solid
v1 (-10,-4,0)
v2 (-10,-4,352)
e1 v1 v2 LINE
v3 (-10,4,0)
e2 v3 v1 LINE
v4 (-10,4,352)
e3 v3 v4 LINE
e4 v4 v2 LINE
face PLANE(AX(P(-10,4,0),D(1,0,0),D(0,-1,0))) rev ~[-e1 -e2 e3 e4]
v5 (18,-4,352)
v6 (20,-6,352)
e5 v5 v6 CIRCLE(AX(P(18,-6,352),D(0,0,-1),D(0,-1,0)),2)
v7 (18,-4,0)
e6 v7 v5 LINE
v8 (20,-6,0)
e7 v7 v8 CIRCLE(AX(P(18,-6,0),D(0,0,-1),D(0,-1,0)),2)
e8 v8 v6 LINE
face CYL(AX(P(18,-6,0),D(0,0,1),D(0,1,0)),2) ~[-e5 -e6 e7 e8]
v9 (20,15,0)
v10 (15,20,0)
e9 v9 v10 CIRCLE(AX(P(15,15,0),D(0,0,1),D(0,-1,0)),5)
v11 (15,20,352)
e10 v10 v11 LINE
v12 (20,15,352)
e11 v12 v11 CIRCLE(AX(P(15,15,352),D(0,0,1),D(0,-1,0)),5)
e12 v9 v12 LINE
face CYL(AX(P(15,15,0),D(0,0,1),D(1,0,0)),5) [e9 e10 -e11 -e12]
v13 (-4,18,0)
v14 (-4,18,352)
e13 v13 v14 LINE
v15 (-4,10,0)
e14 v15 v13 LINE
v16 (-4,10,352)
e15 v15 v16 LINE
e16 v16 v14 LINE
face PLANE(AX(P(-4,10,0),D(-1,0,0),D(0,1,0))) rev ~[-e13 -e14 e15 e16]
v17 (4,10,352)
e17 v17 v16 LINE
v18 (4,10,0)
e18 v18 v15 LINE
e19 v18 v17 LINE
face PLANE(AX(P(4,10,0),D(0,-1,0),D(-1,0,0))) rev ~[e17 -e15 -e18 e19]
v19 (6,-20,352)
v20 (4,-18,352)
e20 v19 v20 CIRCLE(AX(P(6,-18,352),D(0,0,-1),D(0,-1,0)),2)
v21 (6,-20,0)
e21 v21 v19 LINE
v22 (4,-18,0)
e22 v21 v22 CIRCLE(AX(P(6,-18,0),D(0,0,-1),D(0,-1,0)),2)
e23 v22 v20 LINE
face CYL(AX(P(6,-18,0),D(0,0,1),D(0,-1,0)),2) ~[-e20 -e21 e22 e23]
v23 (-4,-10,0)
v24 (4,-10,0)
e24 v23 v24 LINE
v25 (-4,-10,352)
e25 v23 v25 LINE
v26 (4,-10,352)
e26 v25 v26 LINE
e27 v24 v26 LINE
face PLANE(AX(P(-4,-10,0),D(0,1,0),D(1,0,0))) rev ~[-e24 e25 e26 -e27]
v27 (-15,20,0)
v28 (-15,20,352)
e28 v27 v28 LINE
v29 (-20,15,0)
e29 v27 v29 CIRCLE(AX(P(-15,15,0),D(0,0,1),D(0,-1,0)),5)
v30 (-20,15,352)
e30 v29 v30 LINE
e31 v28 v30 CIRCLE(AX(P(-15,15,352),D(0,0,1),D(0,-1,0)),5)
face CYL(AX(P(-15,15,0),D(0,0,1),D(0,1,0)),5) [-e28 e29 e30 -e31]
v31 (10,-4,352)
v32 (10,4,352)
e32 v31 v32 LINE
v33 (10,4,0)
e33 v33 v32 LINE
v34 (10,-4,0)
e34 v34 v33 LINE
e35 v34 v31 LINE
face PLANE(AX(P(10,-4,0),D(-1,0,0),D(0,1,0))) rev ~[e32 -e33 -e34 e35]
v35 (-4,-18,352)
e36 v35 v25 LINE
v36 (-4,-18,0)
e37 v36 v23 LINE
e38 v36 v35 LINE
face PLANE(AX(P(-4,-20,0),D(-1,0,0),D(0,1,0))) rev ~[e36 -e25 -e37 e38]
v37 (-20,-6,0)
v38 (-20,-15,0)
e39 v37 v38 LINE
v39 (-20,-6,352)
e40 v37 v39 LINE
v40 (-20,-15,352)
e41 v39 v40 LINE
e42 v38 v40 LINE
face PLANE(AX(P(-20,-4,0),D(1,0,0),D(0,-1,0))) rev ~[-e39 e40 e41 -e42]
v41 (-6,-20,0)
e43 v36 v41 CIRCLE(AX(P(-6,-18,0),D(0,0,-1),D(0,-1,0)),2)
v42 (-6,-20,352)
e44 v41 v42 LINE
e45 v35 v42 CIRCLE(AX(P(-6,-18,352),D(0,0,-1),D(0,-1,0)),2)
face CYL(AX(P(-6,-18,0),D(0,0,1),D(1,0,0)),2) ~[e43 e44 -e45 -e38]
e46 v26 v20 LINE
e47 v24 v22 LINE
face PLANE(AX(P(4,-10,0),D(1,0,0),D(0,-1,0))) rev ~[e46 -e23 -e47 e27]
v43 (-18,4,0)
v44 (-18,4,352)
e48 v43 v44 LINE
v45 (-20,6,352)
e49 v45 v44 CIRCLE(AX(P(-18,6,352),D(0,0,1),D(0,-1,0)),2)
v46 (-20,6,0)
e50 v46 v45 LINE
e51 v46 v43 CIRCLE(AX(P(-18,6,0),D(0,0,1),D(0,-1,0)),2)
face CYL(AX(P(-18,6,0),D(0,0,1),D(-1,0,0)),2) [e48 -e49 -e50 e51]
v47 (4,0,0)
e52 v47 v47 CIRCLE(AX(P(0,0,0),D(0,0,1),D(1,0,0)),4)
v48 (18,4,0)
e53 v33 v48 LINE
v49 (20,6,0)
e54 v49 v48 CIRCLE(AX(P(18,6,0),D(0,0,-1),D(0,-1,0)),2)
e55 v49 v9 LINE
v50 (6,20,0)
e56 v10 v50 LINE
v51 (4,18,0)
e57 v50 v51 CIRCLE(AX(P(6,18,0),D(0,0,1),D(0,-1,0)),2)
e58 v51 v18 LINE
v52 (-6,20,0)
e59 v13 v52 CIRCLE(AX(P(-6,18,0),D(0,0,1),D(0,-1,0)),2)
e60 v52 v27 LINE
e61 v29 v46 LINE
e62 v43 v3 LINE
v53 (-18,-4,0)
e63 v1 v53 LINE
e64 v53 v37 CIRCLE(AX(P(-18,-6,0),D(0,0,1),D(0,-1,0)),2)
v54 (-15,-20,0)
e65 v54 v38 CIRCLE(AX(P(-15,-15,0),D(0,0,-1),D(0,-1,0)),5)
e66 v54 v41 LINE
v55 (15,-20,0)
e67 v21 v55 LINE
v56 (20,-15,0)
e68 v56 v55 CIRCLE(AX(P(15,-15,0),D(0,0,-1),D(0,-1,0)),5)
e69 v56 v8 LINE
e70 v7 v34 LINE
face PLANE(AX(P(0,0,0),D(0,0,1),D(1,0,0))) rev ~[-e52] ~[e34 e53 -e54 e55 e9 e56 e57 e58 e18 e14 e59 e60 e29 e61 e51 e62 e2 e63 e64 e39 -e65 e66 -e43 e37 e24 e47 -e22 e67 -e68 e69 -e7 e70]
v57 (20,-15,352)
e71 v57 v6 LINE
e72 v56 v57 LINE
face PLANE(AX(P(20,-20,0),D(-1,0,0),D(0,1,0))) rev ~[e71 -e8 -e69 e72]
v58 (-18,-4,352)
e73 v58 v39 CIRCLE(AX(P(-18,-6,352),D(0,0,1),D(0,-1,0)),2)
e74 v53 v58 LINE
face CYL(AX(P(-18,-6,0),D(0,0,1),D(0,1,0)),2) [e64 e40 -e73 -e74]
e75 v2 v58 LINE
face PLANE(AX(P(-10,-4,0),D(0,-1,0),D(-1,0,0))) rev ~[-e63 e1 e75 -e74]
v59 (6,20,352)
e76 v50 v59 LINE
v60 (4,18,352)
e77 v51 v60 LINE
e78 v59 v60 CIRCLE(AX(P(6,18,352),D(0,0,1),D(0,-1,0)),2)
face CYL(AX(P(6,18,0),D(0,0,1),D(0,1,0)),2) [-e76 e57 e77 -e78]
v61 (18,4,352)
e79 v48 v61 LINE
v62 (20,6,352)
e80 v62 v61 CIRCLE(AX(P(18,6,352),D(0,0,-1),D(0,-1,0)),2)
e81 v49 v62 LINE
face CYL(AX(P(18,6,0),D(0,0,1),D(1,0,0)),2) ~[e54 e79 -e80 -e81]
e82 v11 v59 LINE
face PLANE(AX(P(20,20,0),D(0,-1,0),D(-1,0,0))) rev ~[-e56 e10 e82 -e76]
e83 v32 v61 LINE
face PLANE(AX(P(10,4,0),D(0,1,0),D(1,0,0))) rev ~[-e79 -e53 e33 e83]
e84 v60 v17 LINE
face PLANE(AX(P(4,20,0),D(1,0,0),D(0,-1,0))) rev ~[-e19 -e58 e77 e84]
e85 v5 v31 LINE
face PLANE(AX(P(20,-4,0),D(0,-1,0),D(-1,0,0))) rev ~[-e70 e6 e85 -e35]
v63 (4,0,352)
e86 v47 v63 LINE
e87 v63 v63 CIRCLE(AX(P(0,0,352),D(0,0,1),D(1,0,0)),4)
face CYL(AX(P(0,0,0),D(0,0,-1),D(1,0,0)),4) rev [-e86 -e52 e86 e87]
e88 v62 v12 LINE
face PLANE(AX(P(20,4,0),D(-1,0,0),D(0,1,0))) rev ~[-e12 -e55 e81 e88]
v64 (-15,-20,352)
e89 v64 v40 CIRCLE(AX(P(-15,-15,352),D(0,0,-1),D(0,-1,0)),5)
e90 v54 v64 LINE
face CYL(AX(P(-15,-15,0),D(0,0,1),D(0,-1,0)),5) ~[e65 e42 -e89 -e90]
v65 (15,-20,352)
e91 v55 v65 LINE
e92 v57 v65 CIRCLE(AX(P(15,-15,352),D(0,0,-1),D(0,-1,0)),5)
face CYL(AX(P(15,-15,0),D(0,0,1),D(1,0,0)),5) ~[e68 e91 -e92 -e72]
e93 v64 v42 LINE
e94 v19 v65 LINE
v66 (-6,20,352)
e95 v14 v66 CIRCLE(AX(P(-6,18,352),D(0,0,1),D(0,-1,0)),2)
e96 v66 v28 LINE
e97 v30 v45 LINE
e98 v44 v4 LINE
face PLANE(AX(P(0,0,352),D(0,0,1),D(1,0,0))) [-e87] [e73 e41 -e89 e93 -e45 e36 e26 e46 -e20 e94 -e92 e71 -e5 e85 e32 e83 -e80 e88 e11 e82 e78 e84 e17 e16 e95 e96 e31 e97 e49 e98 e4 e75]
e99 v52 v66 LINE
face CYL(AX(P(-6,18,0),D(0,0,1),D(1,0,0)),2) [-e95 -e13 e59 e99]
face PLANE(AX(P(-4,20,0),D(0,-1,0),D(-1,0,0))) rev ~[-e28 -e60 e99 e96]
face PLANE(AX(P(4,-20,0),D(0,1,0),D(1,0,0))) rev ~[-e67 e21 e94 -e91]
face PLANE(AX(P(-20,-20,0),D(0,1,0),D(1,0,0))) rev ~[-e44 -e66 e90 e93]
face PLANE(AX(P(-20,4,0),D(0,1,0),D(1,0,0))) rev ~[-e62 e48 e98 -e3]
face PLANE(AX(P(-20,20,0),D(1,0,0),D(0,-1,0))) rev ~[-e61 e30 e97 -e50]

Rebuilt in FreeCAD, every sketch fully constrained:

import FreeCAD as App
import Part
import Sketcher
from FreeCAD import Vector
Q = App.Units.Quantity


def edges_at(feature, points):
    """Names of the edges that pass closest to the given points."""
    edges = feature.Shape.Edges
    near = lambda p: min(range(len(edges)), key=lambda i: edges[i].distToShape(Part.Vertex(*p))[0])
    return sorted({f"Edge{near(p) + 1}" for p in points})


def add_polygon(sketch, points):
    """Adds a closed chain of lines whose ends are joined by coincident constraints."""
    first, n = sketch.GeometryCount, len(points)
    for a, b in zip(points, points[1:] + points[:1]):
        sketch.addGeometry(Part.LineSegment(App.Vector(*a, 0), App.Vector(*b, 0)), False)
    for i in range(n):
        sketch.addConstraint(Sketcher.Constraint("Coincident", first + i, 2, first + (i + 1) % n, 1))

doc = App.newDocument("Part")
body = doc.addObject("PartDesign::Body", "Body")

sketch1 = body.newObject("Sketcher::SketchObject", "Sketch")
sketch1.AttachmentSupport = (doc.getObject("XY_Plane"), [""])
sketch1.MapMode = "FlatFace"
add_polygon(sketch1, [(20, 4), (20, 20), (4, 20), (4, 10), (-4, 10), (-4, 20), (-20, 20), (-20, 4), (-10, 4), (-10, -4), (-20, -4), (-20, -20), (-4, -20), (-4, -10), (4, -10), (4, -20), (20, -20), (20, -4), (10, -4), (10, 4)])
sketch1.addGeometry(Part.Circle(Vector(0, 0, 0), Vector(0, 0, 1), 4), False)
sketch1.addConstraint(Sketcher.Constraint("Vertical", 0))
sketch1.addConstraint(Sketcher.Constraint("Horizontal", 1))
sketch1.addConstraint(Sketcher.Constraint("Vertical", 2))
sketch1.addConstraint(Sketcher.Constraint("Horizontal", 3))
sketch1.addConstraint(Sketcher.Constraint("Vertical", 4))
sketch1.addConstraint(Sketcher.Constraint("Horizontal", 5))
sketch1.addConstraint(Sketcher.Constraint("Vertical", 6))
sketch1.addConstraint(Sketcher.Constraint("Horizontal", 7))
sketch1.addConstraint(Sketcher.Constraint("Vertical", 8))
sketch1.addConstraint(Sketcher.Constraint("Horizontal", 9))
sketch1.addConstraint(Sketcher.Constraint("Vertical", 10))
sketch1.addConstraint(Sketcher.Constraint("Horizontal", 11))
sketch1.addConstraint(Sketcher.Constraint("Vertical", 12))
sketch1.addConstraint(Sketcher.Constraint("Horizontal", 13))
sketch1.addConstraint(Sketcher.Constraint("Vertical", 14))
sketch1.addConstraint(Sketcher.Constraint("Horizontal", 15))
sketch1.addConstraint(Sketcher.Constraint("Vertical", 16))
sketch1.addConstraint(Sketcher.Constraint("Horizontal", 17))
sketch1.addConstraint(Sketcher.Constraint("Vertical", 18))
sketch1.addConstraint(Sketcher.Constraint("Horizontal", 19))
sketch1.addConstraint(Sketcher.Constraint("Coincident", 20, 3, -1, 1))
sketch1.addConstraint(Sketcher.Constraint("Symmetric", 0, 2, 10, 2, -1, 1))
sketch1.addConstraint(Sketcher.Constraint("Symmetric", 2, 2, 12, 2, -1, 1))
sketch1.addConstraint(Sketcher.Constraint("Symmetric", 4, 2, 14, 2, -1, 1))
sketch1.addConstraint(Sketcher.Constraint("Symmetric", 6, 2, 16, 2, -1, 1))
sketch1.addConstraint(Sketcher.Constraint("Symmetric", 8, 2, 18, 2, -1, 1))
sketch1.addConstraint(Sketcher.Constraint("Symmetric", 1, 2, 4, 2, -2))
sketch1.addConstraint(Sketcher.Constraint("Symmetric", 9, 2, 16, 2, -2))
sketch1.addConstraint(Sketcher.Constraint("Equal", 15, 0))
sketch1.addConstraint(Sketcher.Constraint("Equal", 19, 2))
sketch1.addConstraint(Sketcher.Constraint("Equal", 13, 8))
sketch1.addConstraint(Sketcher.Constraint("Diameter", 20, Q("8 mm")))
sketch1.addConstraint(Sketcher.Constraint("DistanceX", 1, 2, 1, 1, Q("16 mm")))
sketch1.addConstraint(Sketcher.Constraint("DistanceX", 3, 2, 3, 1, Q("8 mm")))
sketch1.addConstraint(Sketcher.Constraint("DistanceX", 7, 1, 7, 2, Q("10 mm")))
pad1 = body.newObject("PartDesign::Pad", "Pad")
pad1.Profile = sketch1
pad1.Length = 352
doc.recompute()

fillet = body.newObject("PartDesign::Fillet", "Fillet")
fillet.Base = (pad1, edges_at(pad1, [
    (-20, 20, 176),
    (-20, -20, 176),
    (20, 20, 176),
    (20, -20, 176),
]))
fillet.Radius = 5
doc.recompute()

fillet2 = body.newObject("PartDesign::Fillet", "Fillet001")
fillet2.Base = (fillet, edges_at(fillet, [
    (-4, 20, 176),
    (4, 20, 176),
    (20, 4, 176),
    (20, -4, 176),
    (4, -20, 176),
    (-4, -20, 176),
    (-20, -4, 176),
    (-20, 4, 176),
]))
fillet2.Radius = 2

doc.recompute()
